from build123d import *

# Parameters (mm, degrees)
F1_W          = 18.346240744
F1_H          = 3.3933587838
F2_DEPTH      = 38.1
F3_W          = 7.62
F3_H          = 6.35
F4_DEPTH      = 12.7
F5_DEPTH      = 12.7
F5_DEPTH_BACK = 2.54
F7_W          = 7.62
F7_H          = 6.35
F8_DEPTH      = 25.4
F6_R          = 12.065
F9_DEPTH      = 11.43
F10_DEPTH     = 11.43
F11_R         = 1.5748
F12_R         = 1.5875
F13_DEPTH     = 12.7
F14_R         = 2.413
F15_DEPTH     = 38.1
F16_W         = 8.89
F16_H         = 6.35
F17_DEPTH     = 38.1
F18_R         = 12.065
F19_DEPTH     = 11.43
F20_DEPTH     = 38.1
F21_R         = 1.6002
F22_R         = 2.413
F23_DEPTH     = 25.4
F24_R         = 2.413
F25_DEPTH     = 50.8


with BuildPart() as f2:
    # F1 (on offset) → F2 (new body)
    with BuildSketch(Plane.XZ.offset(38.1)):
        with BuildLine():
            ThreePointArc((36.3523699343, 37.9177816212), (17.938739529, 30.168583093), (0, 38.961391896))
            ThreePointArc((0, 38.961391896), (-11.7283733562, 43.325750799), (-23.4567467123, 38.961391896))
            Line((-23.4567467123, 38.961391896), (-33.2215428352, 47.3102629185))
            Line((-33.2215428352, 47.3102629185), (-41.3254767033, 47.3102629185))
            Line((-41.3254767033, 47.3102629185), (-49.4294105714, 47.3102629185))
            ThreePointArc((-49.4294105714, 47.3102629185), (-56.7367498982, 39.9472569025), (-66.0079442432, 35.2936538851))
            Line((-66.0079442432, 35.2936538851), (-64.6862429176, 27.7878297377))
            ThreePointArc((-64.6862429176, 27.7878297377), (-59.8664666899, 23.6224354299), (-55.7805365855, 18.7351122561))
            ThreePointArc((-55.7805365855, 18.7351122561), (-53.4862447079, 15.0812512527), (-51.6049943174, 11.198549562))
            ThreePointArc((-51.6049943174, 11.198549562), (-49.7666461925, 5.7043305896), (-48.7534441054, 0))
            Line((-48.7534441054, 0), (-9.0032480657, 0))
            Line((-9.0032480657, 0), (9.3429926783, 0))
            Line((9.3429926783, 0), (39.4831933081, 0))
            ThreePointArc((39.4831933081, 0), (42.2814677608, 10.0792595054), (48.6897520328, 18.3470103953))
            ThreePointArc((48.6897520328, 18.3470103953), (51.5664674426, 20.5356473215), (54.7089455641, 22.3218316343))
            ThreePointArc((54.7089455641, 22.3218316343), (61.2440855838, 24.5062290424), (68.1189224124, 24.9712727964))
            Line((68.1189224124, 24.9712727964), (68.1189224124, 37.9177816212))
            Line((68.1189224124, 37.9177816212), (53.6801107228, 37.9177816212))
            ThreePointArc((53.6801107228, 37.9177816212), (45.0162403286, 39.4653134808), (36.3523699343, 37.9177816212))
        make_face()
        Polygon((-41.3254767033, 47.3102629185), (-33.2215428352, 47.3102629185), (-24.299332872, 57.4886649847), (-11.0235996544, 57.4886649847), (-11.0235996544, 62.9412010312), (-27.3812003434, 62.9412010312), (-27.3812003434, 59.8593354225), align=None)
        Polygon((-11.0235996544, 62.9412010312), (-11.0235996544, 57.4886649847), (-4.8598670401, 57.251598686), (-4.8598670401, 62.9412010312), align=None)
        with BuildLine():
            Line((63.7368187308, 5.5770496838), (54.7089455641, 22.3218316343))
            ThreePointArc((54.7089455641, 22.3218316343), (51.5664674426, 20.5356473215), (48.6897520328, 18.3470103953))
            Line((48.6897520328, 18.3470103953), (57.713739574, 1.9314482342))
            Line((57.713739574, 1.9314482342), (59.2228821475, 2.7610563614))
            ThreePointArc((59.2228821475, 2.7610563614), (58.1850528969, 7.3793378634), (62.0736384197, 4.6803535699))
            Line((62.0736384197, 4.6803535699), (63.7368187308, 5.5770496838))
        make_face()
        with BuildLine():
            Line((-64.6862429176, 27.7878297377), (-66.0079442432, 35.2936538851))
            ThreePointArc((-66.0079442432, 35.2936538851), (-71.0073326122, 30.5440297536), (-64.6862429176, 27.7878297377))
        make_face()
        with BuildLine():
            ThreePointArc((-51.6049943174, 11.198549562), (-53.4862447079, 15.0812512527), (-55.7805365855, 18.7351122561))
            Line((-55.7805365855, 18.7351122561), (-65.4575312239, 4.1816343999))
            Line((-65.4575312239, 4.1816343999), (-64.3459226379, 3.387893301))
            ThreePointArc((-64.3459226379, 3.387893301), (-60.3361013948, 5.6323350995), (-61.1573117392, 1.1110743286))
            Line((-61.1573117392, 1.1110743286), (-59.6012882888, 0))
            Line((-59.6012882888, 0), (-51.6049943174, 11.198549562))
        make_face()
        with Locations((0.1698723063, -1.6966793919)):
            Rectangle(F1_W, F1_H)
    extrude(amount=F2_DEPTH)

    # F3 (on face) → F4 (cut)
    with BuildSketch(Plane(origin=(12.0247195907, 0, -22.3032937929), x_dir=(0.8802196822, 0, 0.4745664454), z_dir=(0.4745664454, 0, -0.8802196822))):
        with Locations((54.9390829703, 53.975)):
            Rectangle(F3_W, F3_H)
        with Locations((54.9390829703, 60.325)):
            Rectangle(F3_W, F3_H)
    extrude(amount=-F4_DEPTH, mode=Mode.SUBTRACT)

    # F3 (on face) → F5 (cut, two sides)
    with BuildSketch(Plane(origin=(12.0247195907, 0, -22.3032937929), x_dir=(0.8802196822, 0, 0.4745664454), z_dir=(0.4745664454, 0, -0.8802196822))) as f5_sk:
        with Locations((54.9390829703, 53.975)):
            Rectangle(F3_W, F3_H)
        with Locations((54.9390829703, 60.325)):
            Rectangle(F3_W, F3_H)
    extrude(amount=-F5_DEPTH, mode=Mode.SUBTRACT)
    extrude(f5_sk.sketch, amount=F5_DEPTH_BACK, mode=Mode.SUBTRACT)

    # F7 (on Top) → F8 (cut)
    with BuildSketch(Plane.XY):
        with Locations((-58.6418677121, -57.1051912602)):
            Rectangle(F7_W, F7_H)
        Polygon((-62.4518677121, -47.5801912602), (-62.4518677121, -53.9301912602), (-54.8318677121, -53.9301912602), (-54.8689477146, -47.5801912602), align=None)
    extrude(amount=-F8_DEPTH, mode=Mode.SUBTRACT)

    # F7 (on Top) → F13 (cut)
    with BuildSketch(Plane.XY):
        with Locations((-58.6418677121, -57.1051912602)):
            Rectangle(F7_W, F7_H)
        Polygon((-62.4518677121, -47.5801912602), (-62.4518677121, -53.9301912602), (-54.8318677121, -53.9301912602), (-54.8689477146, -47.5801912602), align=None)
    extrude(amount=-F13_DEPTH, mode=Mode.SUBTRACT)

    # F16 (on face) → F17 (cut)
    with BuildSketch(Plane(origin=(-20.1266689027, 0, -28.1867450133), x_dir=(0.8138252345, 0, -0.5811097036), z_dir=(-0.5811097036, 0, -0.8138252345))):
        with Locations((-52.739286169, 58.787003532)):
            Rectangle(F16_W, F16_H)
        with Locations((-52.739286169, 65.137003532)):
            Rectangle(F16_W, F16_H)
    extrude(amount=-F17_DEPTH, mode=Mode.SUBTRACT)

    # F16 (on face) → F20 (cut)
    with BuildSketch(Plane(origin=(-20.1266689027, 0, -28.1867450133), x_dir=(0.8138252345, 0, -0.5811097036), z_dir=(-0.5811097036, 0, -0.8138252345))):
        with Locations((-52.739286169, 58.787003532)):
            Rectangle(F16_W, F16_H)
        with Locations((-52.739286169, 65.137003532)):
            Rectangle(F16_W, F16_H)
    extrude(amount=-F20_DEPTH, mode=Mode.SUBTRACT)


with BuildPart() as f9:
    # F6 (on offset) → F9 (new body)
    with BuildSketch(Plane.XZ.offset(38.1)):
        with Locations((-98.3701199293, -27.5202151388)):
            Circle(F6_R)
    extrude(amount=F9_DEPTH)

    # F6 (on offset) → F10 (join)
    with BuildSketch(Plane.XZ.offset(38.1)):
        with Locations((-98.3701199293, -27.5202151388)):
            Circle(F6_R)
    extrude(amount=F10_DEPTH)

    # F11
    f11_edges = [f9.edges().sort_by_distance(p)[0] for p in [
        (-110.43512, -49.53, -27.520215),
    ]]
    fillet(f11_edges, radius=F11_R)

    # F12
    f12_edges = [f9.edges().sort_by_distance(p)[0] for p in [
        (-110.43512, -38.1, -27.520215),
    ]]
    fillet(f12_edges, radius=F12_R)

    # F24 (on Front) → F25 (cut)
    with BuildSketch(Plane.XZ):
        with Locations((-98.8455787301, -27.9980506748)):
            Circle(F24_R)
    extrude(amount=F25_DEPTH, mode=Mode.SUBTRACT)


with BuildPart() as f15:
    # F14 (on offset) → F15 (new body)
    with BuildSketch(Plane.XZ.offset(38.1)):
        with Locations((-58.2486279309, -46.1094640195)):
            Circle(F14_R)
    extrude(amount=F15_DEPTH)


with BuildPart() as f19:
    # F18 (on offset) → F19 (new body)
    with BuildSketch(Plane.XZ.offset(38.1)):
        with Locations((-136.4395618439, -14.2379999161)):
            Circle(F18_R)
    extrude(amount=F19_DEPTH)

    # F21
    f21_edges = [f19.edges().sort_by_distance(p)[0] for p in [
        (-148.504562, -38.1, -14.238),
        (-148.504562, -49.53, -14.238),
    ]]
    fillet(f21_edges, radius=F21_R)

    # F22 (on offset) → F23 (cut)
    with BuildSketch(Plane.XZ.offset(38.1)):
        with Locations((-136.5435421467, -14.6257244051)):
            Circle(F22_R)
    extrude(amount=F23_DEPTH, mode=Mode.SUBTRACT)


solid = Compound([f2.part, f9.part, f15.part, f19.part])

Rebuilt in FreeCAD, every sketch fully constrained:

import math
import FreeCAD as App
import Part
import Sketcher

V = App.Vector
Q = App.Units.Quantity


def edges_at(feature, points):
    """Names of the edges that pass closest to the given points."""
    edges = feature.Shape.Edges
    near = lambda p: min(range(len(edges)), key=lambda i: edges[i].distToShape(Part.Vertex(*p))[0])
    return sorted({f"Edge{near(p) + 1}" for p in points})

doc = App.newDocument("Part")
params = doc.addObject("Spreadsheet::Sheet", "Params")
for row, (alias, value) in enumerate([
    ("sketch1_radius", "0.1 in"),
    ("sketch1_height", "0.2240001 in"),
    ("pad1_length", "1.5 in"),
    ("sketch2_width", "0.3 in"),
    ("sketch2_height", "0.5 in"),
    ("pocket1_length", "0.5 in"),
    ("sketch3_width", "0.3 in"),
    ("sketch3_height", "0.5 in"),
    ("pocket2_length", "0.5 in"),
    ("pocket2_length2", "0.1 in"),
    ("sketch4_width", "0.3 in"),
    ("sketch4_height", "0.5 in"),
    ("sketch4_height2", "0.25 in"),
    ("pocket3_length", "1 in"),
    ("sketch5_width", "0.3 in"),
    ("sketch5_height", "0.5 in"),
    ("sketch5_height2", "0.25 in"),
    ("pocket4_length", "0.5 in"),
    ("sketch6_height", "0.5 in"),
    ("sketch6_width", "0.35 in"),
    ("pocket5_length", "1.5 in"),
    ("sketch7_height", "0.5 in"),
    ("sketch7_width", "0.35 in"),
    ("pocket6_length", "1.5 in"),
    ("sketch8_diameter", "0.95 in"),
    ("pad2_length", "0.45 in"),
    ("sketch9_diameter", "0.95 in"),
    ("pad3_length", "0.45 in"),
    ("fillet_radius", "0.062 in"),
    ("fillet2_radius", "0.0625 in"),
    ("sketch10_diameter", "0.19 in"),
    ("pocket7_length", "2 in"),
    ("sketch11_diameter", "0.19 in"),
    ("pad4_length", "1.5 in"),
    ("sketch12_diameter", "0.95 in"),
    ("pad5_length", "0.45 in"),
    ("fillet3_radius", "0.063 in"),
    ("sketch13_diameter", "0.19 in"),
    ("pocket8_length", "1 in"),
], start=1):
    params.set(f"A{row}", alias)
    params.set(f"B{row}", "=" + value)
    params.setAlias(f"B{row}", alias)

body = doc.addObject("PartDesign::Body", "Body")

sketch1 = body.newObject("Sketcher::SketchObject", "Sketch")
sketch1.AttachmentSupport = (doc.getObject("XZ_Plane"), [""])
sketch1.MapMode = "FlatFace"
sketch1.AttachmentOffset = App.Placement(V(0, 0, 1.5 * 25.4), App.Rotation())
sketch1.addGeometry([
    Part.ArcOfCircle(Part.Circle(V(18.6, 54.3, 0), V(0, 0, 1), 24.1), math.radians(-141), math.radians(-43)),
    Part.ArcOfCircle(Part.Circle(V(-11.7, 25.4, 0), V(0, 0, 1), 17.9), math.radians(49), math.radians(131)),
    Part.LineSegment(V(-23.5, 39, 0), V(-33.2, 47.3, 0)),
    Part.LineSegment(V(-33.2, 47.3, 0), V(-24.3, 57.5, 0)),
    Part.LineSegment(V(-24.3, 57.5, 0), V(-11, 57.5, 0)),
    Part.LineSegment(V(-11, 57.5, 0), V(-4.9, 57.3, 0)),
    Part.LineSegment(V(-4.9, 57.3, 0), V(-4.9, 62.9, 0)),
    Part.LineSegment(V(-4.9, 62.9, 0), V(-27.4, 62.9, 0)),
    Part.LineSegment(V(-27.4, 62.9, 0), V(-27.4, 59.9, 0)),
    Part.LineSegment(V(-27.4, 59.9, 0), V(-41.3, 47.3, 0)),
    Part.LineSegment(V(-41.3, 47.3, 0), V(-49.4, 47.3, 0)),
    Part.ArcOfCircle(Part.Circle(V(-75.6, 66, 0), V(0, 0, 1), 32.2), math.radians(-73), math.radians(-36)),
    Part.ArcOfCircle(Part.Circle(V(-66.9, 31.3, 0), V(0, 0, 1), 4.1), math.radians(77), math.radians(303)),
    Part.ArcOfCircle(Part.Circle(V(-88, -4, 0), V(0, 0, 1), 39.4), math.radians(35.26), math.radians(53.8)),
    Part.LineSegment(V(-55.8, 18.7, 0), V(-65.5, 4.2, 0)),
    Part.LineSegment(V(-65.5, 4.2, 0), V(-64.3, 3.4, 0)),
    Part.ArcOfCircle(Part.Circle(V(-61.8, 3.6, 0), V(0, 0, 1), 2.5), math.radians(-75), math.radians(184)),
    Part.LineSegment(V(-61.2, 1.1, 0), V(-59.6, 0, 0)),
    Part.LineSegment(V(-59.6, 0, 0), V(-51.6, 11.2, 0)),
    Part.ArcOfCircle(Part.Circle(V(-88, -4, 0), V(0, 0, 1), 39.4), math.radians(5.86), math.radians(22.71)),
    Part.LineSegment(V(-48.8, 0, 0), V(-9, 0, 0)),
    Part.LineSegment(V(-9, 0, 0), V(-9, -3.4, 0)),
    Part.LineSegment(V(-9, -3.4, 0), V(9.3, -3.4, 0)),
    Part.LineSegment(V(9.3, -3.4, 0), V(9.3, 0, 0)),
    Part.LineSegment(V(9.3, 0, 0), V(39.5, 0, 0)),
    Part.ArcOfCircle(Part.Circle(V(66.5, -2.1, 0), V(0, 0, 1), 27.1), math.radians(131), math.radians(176)),
    Part.LineSegment(V(48.7, 18.3, 0), V(57.7, 1.9, 0)),
    Part.LineSegment(V(57.7, 1.9, 0), V(59.2, 2.8, 0)),
    Part.ArcOfCircle(Part.Circle(V(59.6, 5.3, 0), V(0, 0, 1), 2.5), math.radians(-13), math.radians(261)),
    Part.LineSegment(V(62.1, 4.7, 0), V(63.7, 5.6, 0)),
    Part.LineSegment(V(63.7, 5.6, 0), V(54.7, 22.3, 0)),
    Part.ArcOfCircle(Part.Circle(V(66.5, -2.1, 0), V(0, 0, 1), 27.1), math.radians(87), math.radians(116)),
    Part.LineSegment(V(68.1, 25, 0), V(68.1, 37.9, 0)),
    Part.LineSegment(V(68.1, 37.9, 0), V(53.7, 37.9, 0)),
    Part.ArcOfCircle(Part.Circle(V(45, 14.4, 0), V(0, 0, 1), 25), math.radians(70), math.radians(110)),
], False)
sketch1.addConstraint([
    Sketcher.Constraint("Coincident", 0, 1, 1, 1),
    Sketcher.Constraint("Coincident", 1, 2, 2, 1),
    Sketcher.Constraint("Coincident", 2, 2, 3, 1),
    Sketcher.Constraint("Coincident", 3, 2, 4, 1),
    Sketcher.Constraint("Coincident", 4, 2, 5, 1),
    Sketcher.Constraint("Coincident", 5, 2, 6, 1),
    Sketcher.Constraint("Coincident", 6, 2, 7, 1),
    Sketcher.Constraint("Coincident", 7, 2, 8, 1),
    Sketcher.Constraint("Coincident", 8, 2, 9, 1),
    Sketcher.Constraint("Coincident", 9, 2, 10, 1),
    Sketcher.Constraint("Coincident", 10, 2, 11, 2),
    Sketcher.Constraint("Coincident", 11, 1, 12, 1),
    Sketcher.Constraint("Coincident", 12, 2, 13, 2),
    Sketcher.Constraint("Coincident", 13, 1, 14, 1),
    Sketcher.Constraint("Coincident", 14, 2, 15, 1),
    Sketcher.Constraint("Coincident", 15, 2, 16, 2),
    Sketcher.Constraint("Coincident", 16, 1, 17, 1),
    Sketcher.Constraint("Coincident", 17, 2, 18, 1),
    Sketcher.Constraint("Coincident", 18, 2, 19, 2),
    Sketcher.Constraint("Coincident", 19, 1, 20, 1),
    Sketcher.Constraint("Coincident", 20, 2, 21, 1),
    Sketcher.Constraint("Coincident", 21, 2, 22, 1),
    Sketcher.Constraint("Coincident", 22, 2, 23, 1),
    Sketcher.Constraint("Coincident", 23, 2, 24, 1),
    Sketcher.Constraint("Coincident", 24, 2, 25, 2),
    Sketcher.Constraint("Coincident", 25, 1, 26, 1),
    Sketcher.Constraint("Coincident", 26, 2, 27, 1),
    Sketcher.Constraint("Coincident", 27, 2, 28, 2),
    Sketcher.Constraint("Coincident", 28, 1, 29, 1),
    Sketcher.Constraint("Coincident", 29, 2, 30, 1),
    Sketcher.Constraint("Coincident", 30, 2, 31, 2),
    Sketcher.Constraint("Coincident", 31, 1, 32, 1),
    Sketcher.Constraint("Coincident", 32, 2, 33, 1),
    Sketcher.Constraint("Coincident", 33, 2, 34, 1),
    Sketcher.Constraint("Coincident", 34, 2, 0, 2),
    Sketcher.Constraint("Horizontal", 4),
    Sketcher.Constraint("Vertical", 6),
    Sketcher.Constraint("Horizontal", 7),
    Sketcher.Constraint("Vertical", 8),
    Sketcher.Constraint("Horizontal", 10),
    Sketcher.Constraint("Horizontal", 20),
    Sketcher.Constraint("Vertical", 21),
    Sketcher.Constraint("Horizontal", 22),
    Sketcher.Constraint("Vertical", 23),
    Sketcher.Constraint("Horizontal", 24),
    Sketcher.Constraint("Vertical", 32),
    Sketcher.Constraint("Horizontal", 33),
    Sketcher.Constraint("Coincident", 19, 3, 13, 3),
    Sketcher.Constraint("Coincident", 31, 3, 25, 3),
    Sketcher.Constraint("Equal", 13, 19),
    Sketcher.Constraint("Equal", 16, 28),
    Sketcher.Constraint("Equal", 25, 31),
    Sketcher.Constraint("PointOnObject", 0, 1, -2),
    Sketcher.Constraint("PointOnObject", 17, 2, -1),
    Sketcher.Constraint("PointOnObject", 19, 1, -1),
    Sketcher.Constraint("PointOnObject", 23, 2, -1),
    Sketcher.Constraint("Parallel", 15, 17),
    Sketcher.Constraint("Perpendicular", 17, 18),
    Sketcher.Constraint("Perpendicular", 26, 27),
    Sketcher.Constraint("Perpendicular", 29, 30),
    Sketcher.Constraint("Horizontal", 0, 1, 1, 2),
    Sketcher.Constraint("Horizontal", 2, 2, 9, 2),
    Sketcher.Constraint("Horizontal", 33, 2, 34, 2),
    Sketcher.Constraint("Radius", 16, Q("0.1 in")),
    Sketcher.Constraint("DistanceY", 6, 1, 6, 2, Q("0.2240001 in")),
    Sketcher.Constraint("DistanceX", 4, 2, -1, 1, Q("0.434 in")),
    Sketcher.Constraint("DistanceY", -1, 1, 5, 2, Q("2.2539999 in")),
    Sketcher.Constraint("DistanceX", 7, 2, -1, 1, Q("1.078 in")),
    Sketcher.Constraint("Radius", 1, 17.941051),
    Sketcher.Constraint("DistanceX", 24, 1, 24, 2, 30.140201),
    Sketcher.Constraint("Radius", 0, 24.117236),
    Sketcher.Constraint("Radius", 11, 32.158415),
    Sketcher.Constraint("Radius", 12, 4.136952),
    Sketcher.Constraint("Radius", 13, 39.420878),
    Sketcher.Constraint("Radius", 25, 27.091136),
    Sketcher.Constraint("Radius", 34, 25.026142),
    Sketcher.Constraint("DistanceX", 14, 2, 16, 1, Q("0.1693 in")),
    Sketcher.Constraint("DistanceX", 34, 2, 30, 2, Q("0.7226998 in")),
    Sketcher.Constraint("DistanceX", 22, 1, 22, 2, 18.346241),
    Sketcher.Constraint("DistanceX", 33, 2, 33, 1, 14.438812),
    Sketcher.Constraint("DistanceY", 21, 2, 21, 1, 3.393359),
    Sketcher.Constraint("DistanceY", 32, 1, 32, 2, 12.946509),
    Sketcher.Constraint("DistanceY", -1, 1, 1, 3, 25.3847),
    Sketcher.Constraint("DistanceX", 11, 3, 0, 3, 94.240601),
    Sketcher.Constraint("DistanceX", 13, 3, 11, 3, 12.358698),
    Sketcher.Constraint("DistanceX", 34, 3, 25, 3, 21.478802),
    Sketcher.Constraint("DistanceY", 11, 1, 11, 3, 30.691502),
    Sketcher.Constraint("DistanceX", 11, 1, 12, 2, 1.321701),
    Sketcher.Constraint("DistanceX", 1, 2, 20, 2, 14.453499),
    Sketcher.Constraint("DistanceX", 24, 2, 28, 3, 20.1204),
    Sketcher.Constraint("DistanceY", 25, 3, 26, 2, 4.002598),
    Sketcher.Constraint("DistanceX", 34, 3, 26, 2, 12.697499),
    Sketcher.Constraint("DistanceX", 26, 2, 28, 1, 4.359899),
    Sketcher.Constraint("DistanceY", 26, 2, 29, 2, 3.645601),
    Sketcher.Constraint("Distance", 2, 12.847369),
    Sketcher.Constraint("Distance", 3, 13.53535),
    Sketcher.Constraint("Distance", 5, 6.16829),
    Sketcher.Constraint("Distance", 14, 17.477069),
    Sketcher.Constraint("Distance", 27, 1.722138),
    Sketcher.Constraint("DistanceX", 4, 1, 4, 2, 13.275733),
    Sketcher.Constraint("DistanceX", 7, 2, 7, 1, 22.521333),
    Sketcher.Constraint("DistanceX", 10, 2, 10, 1, 8.103934),
    Sketcher.Constraint("DistanceX", 20, 1, 20, 2, 39.750196),
    Sketcher.Constraint("DistanceY", 8, 2, 8, 1, 3.081866),
    Sketcher.Constraint("DistanceY", 13, 3, -1, 1, 4.02322),
    Sketcher.Constraint("DistanceX", 16, 3, -1, 1, 61.81212),
    Sketcher.Constraint("DistanceY", -1, 1, 16, 3, 3.565219),
    Sketcher.Constraint("DistanceX", -1, 1, 25, 3, 66.495042),
    Sketcher.Constraint("DistanceY", 25, 3, -1, 1, 2.07115),
    Sketcher.Constraint("DistanceX", 10, 2, -1, 1, 49.429411),
    Sketcher.Constraint("DistanceX", 14, 2, -1, 1, 65.457531),
    Sketcher.Constraint("DistanceX", 17, 2, -1, 1, 59.601288),
    Sketcher.Constraint("DistanceY", -1, 1, 25, 1, 18.34701),
    Sketcher.Constraint("DistanceX", 12, 3, 13, 1, 11.152529),
])
sketch1.setExpression("Constraints[63]", "Params.sketch1_radius")
sketch1.setExpression("Constraints[64]", "Params.sketch1_height")
pad1 = body.newObject("PartDesign::Pad", "Pad")
pad1.Profile = sketch1
pad1.setExpression("Length", "Params.pad1_length")

sketch2 = body.newObject("Sketcher::SketchObject", "Sketch001")
sketch2.Placement = App.Placement(V(12.02472, 0, -22.303294), App.Rotation(V(0.880219682, 0, 0.474566445), V(0, -0.999999999, 0), V(0.474566445, 0, -0.880219682), "ZXY"))
sketch2.addGeometry([
    Part.LineSegment(V(51, 51, 0), V(59, 51, 0)),
    Part.LineSegment(V(59, 51, 0), V(59, 63, 0)),
    Part.LineSegment(V(59, 63, 0), V(51, 63, 0)),
    Part.LineSegment(V(51, 63, 0), V(51, 51, 0)),
], False)
sketch2.addConstraint([
    Sketcher.Constraint("Coincident", 0, 2, 1, 1),
    Sketcher.Constraint("Coincident", 1, 2, 2, 1),
    Sketcher.Constraint("Coincident", 2, 2, 3, 1),
    Sketcher.Constraint("Coincident", 3, 2, 0, 1),
    Sketcher.Constraint("Horizontal", 0),
    Sketcher.Constraint("Vertical", 1),
    Sketcher.Constraint("Horizontal", 2),
    Sketcher.Constraint("Vertical", 3),
    Sketcher.Constraint("DistanceX", 0, 1, 0, 2, Q("0.3 in")),
    Sketcher.Constraint("DistanceY", 1, 1, 1, 2, Q("0.5 in")),
    Sketcher.Constraint("DistanceY", -1, 1, 0, 2, Q("2 in")),
    Sketcher.Constraint("DistanceX", -1, 1, 0, 2, 58.749083),
])
sketch2.setExpression("Constraints[8]", "Params.sketch2_width")
sketch2.setExpression("Constraints[9]", "Params.sketch2_height")
pocket1 = body.newObject("PartDesign::Pocket", "Pocket")
pocket1.Profile = sketch2
pocket1.setExpression("Length", "Params.pocket1_length")

sketch3 = body.newObject("Sketcher::SketchObject", "Sketch002")
sketch3.Placement = App.Placement(V(12.02472, 0, -22.303294), App.Rotation(V(0.880219682, 0, 0.474566445), V(0, -0.999999999, 0), V(0.474566445, 0, -0.880219682), "ZXY"))
sketch3.addGeometry([
    Part.LineSegment(V(51, 51, 0), V(59, 51, 0)),
    Part.LineSegment(V(59, 51, 0), V(59, 63, 0)),
    Part.LineSegment(V(59, 63, 0), V(51, 63, 0)),
    Part.LineSegment(V(51, 63, 0), V(51, 51, 0)),
], False)
sketch3.addConstraint([
    Sketcher.Constraint("Coincident", 0, 2, 1, 1),
    Sketcher.Constraint("Coincident", 1, 2, 2, 1),
    Sketcher.Constraint("Coincident", 2, 2, 3, 1),
    Sketcher.Constraint("Coincident", 3, 2, 0, 1),
    Sketcher.Constraint("Horizontal", 0),
    Sketcher.Constraint("Vertical", 1),
    Sketcher.Constraint("Horizontal", 2),
    Sketcher.Constraint("Vertical", 3),
    Sketcher.Constraint("DistanceX", 0, 1, 0, 2, Q("0.3 in")),
    Sketcher.Constraint("DistanceY", 1, 1, 1, 2, Q("0.5 in")),
    Sketcher.Constraint("DistanceY", -1, 1, 0, 2, Q("2 in")),
    Sketcher.Constraint("DistanceX", -1, 1, 0, 2, 58.749083),
])
sketch3.setExpression("Constraints[8]", "Params.sketch3_width")
sketch3.setExpression("Constraints[9]", "Params.sketch3_height")
pocket2 = body.newObject("PartDesign::Pocket", "Pocket001")
pocket2.Profile = sketch3
pocket2.Type = "TwoLengths"
pocket2.setExpression("Length", "Params.pocket2_length")
pocket2.setExpression("Length2", "Params.pocket2_length2")

sketch4 = body.newObject("Sketcher::SketchObject", "Sketch003")
sketch4.AttachmentSupport = (doc.getObject("XY_Plane"), [""])
sketch4.MapMode = "FlatFace"
sketch4.addGeometry([
    Part.LineSegment(V(-62, -60, 0), V(-55, -60, 0)),
    Part.LineSegment(V(-55, -60, 0), V(-55, -54, 0)),
    Part.LineSegment(V(-55, -54, 0), V(-55, -48, 0)),
    Part.LineSegment(V(-55, -48, 0), V(-62, -48, 0)),
    Part.LineSegment(V(-62, -48, 0), V(-62, -60, 0)),
], False)
sketch4.addConstraint([
    Sketcher.Constraint("Coincident", 0, 2, 1, 1),
    Sketcher.Constraint("Coincident", 1, 2, 2, 1),
    Sketcher.Constraint("Coincident", 2, 2, 3, 1),
    Sketcher.Constraint("Coincident", 3, 2, 4, 1),
    Sketcher.Constraint("Coincident", 4, 2, 0, 1),
    Sketcher.Constraint("Horizontal", 0),
    Sketcher.Constraint("Vertical", 1),
    Sketcher.Constraint("Horizontal", 3),
    Sketcher.Constraint("Vertical", 4),
    Sketcher.Constraint("DistanceX", 0, 1, 0, 2, Q("0.3 in")),
    Sketcher.Constraint("DistanceY", 4, 2, 4, 1, Q("0.5 in")),
    Sketcher.Constraint("DistanceY", 1, 1, 1, 2, Q("0.25 in")),
    Sketcher.Constraint("DistanceX", 3, 2, 3, 1, 7.58292),
    Sketcher.Constraint("DistanceY", 0, 2, -1, 1, 60.280191),
    Sketcher.Constraint("DistanceX", 0, 2, -1, 1, 54.831868),
])
sketch4.setExpression("Constraints[9]", "Params.sketch4_width")
sketch4.setExpression("Constraints[10]", "Params.sketch4_height")
sketch4.setExpression("Constraints[11]", "Params.sketch4_height2")
pocket3 = body.newObject("PartDesign::Pocket", "Pocket002")
pocket3.Profile = sketch4
pocket3.setExpression("Length", "Params.pocket3_length")

sketch5 = body.newObject("Sketcher::SketchObject", "Sketch004")
sketch5.AttachmentSupport = (doc.getObject("XY_Plane"), [""])
sketch5.MapMode = "FlatFace"
sketch5.addGeometry([
    Part.LineSegment(V(-62, -60, 0), V(-55, -60, 0)),
    Part.LineSegment(V(-55, -60, 0), V(-55, -54, 0)),
    Part.LineSegment(V(-55, -54, 0), V(-55, -48, 0)),
    Part.LineSegment(V(-55, -48, 0), V(-62, -48, 0)),
    Part.LineSegment(V(-62, -48, 0), V(-62, -60, 0)),
], False)
sketch5.addConstraint([
    Sketcher.Constraint("Coincident", 0, 2, 1, 1),
    Sketcher.Constraint("Coincident", 1, 2, 2, 1),
    Sketcher.Constraint("Coincident", 2, 2, 3, 1),
    Sketcher.Constraint("Coincident", 3, 2, 4, 1),
    Sketcher.Constraint("Coincident", 4, 2, 0, 1),
    Sketcher.Constraint("Horizontal", 0),
    Sketcher.Constraint("Vertical", 1),
    Sketcher.Constraint("Horizontal", 3),
    Sketcher.Constraint("Vertical", 4),
    Sketcher.Constraint("DistanceX", 0, 1, 0, 2, Q("0.3 in")),
    Sketcher.Constraint("DistanceY", 4, 2, 4, 1, Q("0.5 in")),
    Sketcher.Constraint("DistanceY", 1, 1, 1, 2, Q("0.25 in")),
    Sketcher.Constraint("DistanceX", 3, 2, 3, 1, 7.58292),
    Sketcher.Constraint("DistanceY", 0, 2, -1, 1, 60.280191),
    Sketcher.Constraint("DistanceX", 0, 2, -1, 1, 54.831868),
])
sketch5.setExpression("Constraints[9]", "Params.sketch5_width")
sketch5.setExpression("Constraints[10]", "Params.sketch5_height")
sketch5.setExpression("Constraints[11]", "Params.sketch5_height2")
pocket4 = body.newObject("PartDesign::Pocket", "Pocket003")
pocket4.Profile = sketch5
pocket4.setExpression("Length", "Params.pocket4_length")

sketch6 = body.newObject("Sketcher::SketchObject", "Sketch005")
sketch6.Placement = App.Placement(V(-20.126669, 0, -28.186745), App.Rotation(V(0.813825235, 0, -0.581109704), V(0, -1.000000001, 0), V(-0.581109704, 0, -0.813825235), "ZXY"))
sketch6.addGeometry([
    Part.LineSegment(V(-57, 56, 0), V(-48, 56, 0)),
    Part.LineSegment(V(-48, 56, 0), V(-48, 68, 0)),
    Part.LineSegment(V(-48, 68, 0), V(-57, 68, 0)),
    Part.LineSegment(V(-57, 68, 0), V(-57, 56, 0)),
], False)
sketch6.addConstraint([
    Sketcher.Constraint("Coincident", 0, 2, 1, 1),
    Sketcher.Constraint("Coincident", 1, 2, 2, 1),
    Sketcher.Constraint("Coincident", 2, 2, 3, 1),
    Sketcher.Constraint("Coincident", 3, 2, 0, 1),
    Sketcher.Constraint("Horizontal", 0),
    Sketcher.Constraint("Vertical", 1),
    Sketcher.Constraint("Horizontal", 2),
    Sketcher.Constraint("Vertical", 3),
    Sketcher.Constraint("DistanceY", 1, 1, 1, 2, Q("0.5 in")),
    Sketcher.Constraint("DistanceX", 0, 1, 0, 2, Q("0.35 in")),
    Sketcher.Constraint("DistanceX", 0, 2, -1, 1, 48.294286),
    Sketcher.Constraint("DistanceY", -1, 1, 0, 2, 55.612004),
])
sketch6.setExpression("Constraints[8]", "Params.sketch6_height")
sketch6.setExpression("Constraints[9]", "Params.sketch6_width")
pocket5 = body.newObject("PartDesign::Pocket", "Pocket004")
pocket5.Profile = sketch6
pocket5.setExpression("Length", "Params.pocket5_length")

sketch7 = body.newObject("Sketcher::SketchObject", "Sketch006")
sketch7.Placement = App.Placement(V(-20.126669, 0, -28.186745), App.Rotation(V(0.813825235, 0, -0.581109704), V(0, -1.000000001, 0), V(-0.581109704, 0, -0.813825235), "ZXY"))
sketch7.addGeometry([
    Part.LineSegment(V(-57, 56, 0), V(-48, 56, 0)),
    Part.LineSegment(V(-48, 56, 0), V(-48, 68, 0)),
    Part.LineSegment(V(-48, 68, 0), V(-57, 68, 0)),
    Part.LineSegment(V(-57, 68, 0), V(-57, 56, 0)),
], False)
sketch7.addConstraint([
    Sketcher.Constraint("Coincident", 0, 2, 1, 1),
    Sketcher.Constraint("Coincident", 1, 2, 2, 1),
    Sketcher.Constraint("Coincident", 2, 2, 3, 1),
    Sketcher.Constraint("Coincident", 3, 2, 0, 1),
    Sketcher.Constraint("Horizontal", 0),
    Sketcher.Constraint("Vertical", 1),
    Sketcher.Constraint("Horizontal", 2),
    Sketcher.Constraint("Vertical", 3),
    Sketcher.Constraint("DistanceY", 1, 1, 1, 2, Q("0.5 in")),
    Sketcher.Constraint("DistanceX", 0, 1, 0, 2, Q("0.35 in")),
    Sketcher.Constraint("DistanceX", 0, 2, -1, 1, 48.294286),
    Sketcher.Constraint("DistanceY", -1, 1, 0, 2, 55.612004),
])
sketch7.setExpression("Constraints[8]", "Params.sketch7_height")
sketch7.setExpression("Constraints[9]", "Params.sketch7_width")
pocket6 = body.newObject("PartDesign::Pocket", "Pocket005")
pocket6.Profile = sketch7
pocket6.setExpression("Length", "Params.pocket6_length")
body2 = doc.addObject("PartDesign::Body", "Body001")

sketch8 = body2.newObject("Sketcher::SketchObject", "Sketch007")
sketch8.AttachmentSupport = (doc.getObject("XZ_Plane001"), [""])
sketch8.MapMode = "FlatFace"
sketch8.AttachmentOffset = App.Placement(V(0, 0, 1.5 * 25.4), App.Rotation())
sketch8.addGeometry(Part.Circle(V(-98, -28, 0), V(0, 0, 1), 12), False)
sketch8.addConstraint([
    Sketcher.Constraint("Diameter", 0, Q("0.95 in")),
    Sketcher.Constraint("DistanceX", 0, 3, -1, 1, 98.37012),
    Sketcher.Constraint("DistanceY", 0, 3, -1, 1, 27.520215),
])
sketch8.setExpression("Constraints[0]", "Params.sketch8_diameter")
pad2 = body2.newObject("PartDesign::Pad", "Pad001")
pad2.Profile = sketch8
pad2.setExpression("Length", "Params.pad2_length")

sketch9 = body2.newObject("Sketcher::SketchObject", "Sketch008")
sketch9.AttachmentSupport = (doc.getObject("XZ_Plane001"), [""])
sketch9.MapMode = "FlatFace"
sketch9.AttachmentOffset = App.Placement(V(0, 0, 1.5 * 25.4), App.Rotation())
sketch9.addGeometry(Part.Circle(V(-98, -28, 0), V(0, 0, 1), 12), False)
sketch9.addConstraint([
    Sketcher.Constraint("Diameter", 0, Q("0.95 in")),
    Sketcher.Constraint("DistanceX", 0, 3, -1, 1, 98.37012),
    Sketcher.Constraint("DistanceY", 0, 3, -1, 1, 27.520215),
])
sketch9.setExpression("Constraints[0]", "Params.sketch9_diameter")
pad3 = body2.newObject("PartDesign::Pad", "Pad002")
pad3.Profile = sketch9
pad3.setExpression("Length", "Params.pad3_length")
doc.recompute()

fillet = body2.newObject("PartDesign::Fillet", "Fillet")
fillet.Base = (pad3, edges_at(pad3, [(-110.435, -49.53, -27.52)]))
fillet.setExpression("Radius", "Params.fillet_radius")
doc.recompute()

fillet2 = body2.newObject("PartDesign::Fillet", "Fillet001")
fillet2.Base = (fillet, edges_at(fillet, [(-110.435, -38.1, -27.52)]))
fillet2.setExpression("Radius", "Params.fillet2_radius")

sketch10 = body2.newObject("Sketcher::SketchObject", "Sketch009")
sketch10.AttachmentSupport = (doc.getObject("XZ_Plane001"), [""])
sketch10.MapMode = "FlatFace"
sketch10.addGeometry(Part.Circle(V(-98.8, -28, 0), V(0, 0, 1), 2.4), False)
sketch10.addConstraint([
    Sketcher.Constraint("Diameter", 0, Q("0.19 in")),
    Sketcher.Constraint("DistanceX", 0, 3, -1, 1, 98.845579),
    Sketcher.Constraint("DistanceY", 0, 3, -1, 1, 27.998051),
])
sketch10.setExpression("Constraints[0]", "Params.sketch10_diameter")
pocket7 = body2.newObject("PartDesign::Pocket", "Pocket006")
pocket7.Profile = sketch10
pocket7.setExpression("Length", "Params.pocket7_length")
pocket7.Reversed = True
body3 = doc.addObject("PartDesign::Body", "Body002")

sketch11 = body3.newObject("Sketcher::SketchObject", "Sketch010")
sketch11.AttachmentSupport = (doc.getObject("XZ_Plane002"), [""])
sketch11.MapMode = "FlatFace"
sketch11.AttachmentOffset = App.Placement(V(0, 0, 1.5 * 25.4), App.Rotation())
sketch11.addGeometry(Part.Circle(V(-58.2, -46.1, 0), V(0, 0, 1), 2.4), False)
sketch11.addConstraint([
    Sketcher.Constraint("Diameter", 0, Q("0.19 in")),
    Sketcher.Constraint("DistanceX", 0, 3, -1, 1, 58.248628),
    Sketcher.Constraint("DistanceY", 0, 3, -1, 1, 46.109464),
])
sketch11.setExpression("Constraints[0]", "Params.sketch11_diameter")
pad4 = body3.newObject("PartDesign::Pad", "Pad003")
pad4.Profile = sketch11
pad4.setExpression("Length", "Params.pad4_length")
body4 = doc.addObject("PartDesign::Body", "Body003")

sketch12 = body4.newObject("Sketcher::SketchObject", "Sketch011")
sketch12.AttachmentSupport = (doc.getObject("XZ_Plane003"), [""])
sketch12.MapMode = "FlatFace"
sketch12.AttachmentOffset = App.Placement(V(0, 0, 1.5 * 25.4), App.Rotation())
sketch12.addGeometry(Part.Circle(V(-136, -14, 0), V(0, 0, 1), 12), False)
sketch12.addConstraint([
    Sketcher.Constraint("Diameter", 0, Q("0.95 in")),
    Sketcher.Constraint("DistanceY", 0, 3, -1, 1, 14.238),
    Sketcher.Constraint("DistanceX", 0, 3, -1, 1, 136.439562),
])
sketch12.setExpression("Constraints[0]", "Params.sketch12_diameter")
pad5 = body4.newObject("PartDesign::Pad", "Pad004")
pad5.Profile = sketch12
pad5.setExpression("Length", "Params.pad5_length")
doc.recompute()

fillet3 = body4.newObject("PartDesign::Fillet", "Fillet002")
fillet3.Base = (pad5, edges_at(pad5, [(-148.505, -38.1, -14.238), (-148.505, -49.53, -14.238)]))
fillet3.setExpression("Radius", "Params.fillet3_radius")

sketch13 = body4.newObject("Sketcher::SketchObject", "Sketch012")
sketch13.AttachmentSupport = (doc.getObject("XZ_Plane003"), [""])
sketch13.MapMode = "FlatFace"
sketch13.AttachmentOffset = App.Placement(V(0, 0, 1.5 * 25.4), App.Rotation())
sketch13.addGeometry(Part.Circle(V(-136.5, -14.6, 0), V(0, 0, 1), 2.4), False)
sketch13.addConstraint([
    Sketcher.Constraint("Diameter", 0, Q("0.19 in")),
    Sketcher.Constraint("DistanceX", 0, 3, -1, 1, 136.543542),
    Sketcher.Constraint("DistanceY", 0, 3, -1, 1, 14.625724),
])
sketch13.setExpression("Constraints[0]", "Params.sketch13_diameter")
pocket8 = body4.newObject("PartDesign::Pocket", "Pocket007")
pocket8.Profile = sketch13
pocket8.setExpression("Length", "Params.pocket8_length")
pocket8.Reversed = True

doc.recompute()
